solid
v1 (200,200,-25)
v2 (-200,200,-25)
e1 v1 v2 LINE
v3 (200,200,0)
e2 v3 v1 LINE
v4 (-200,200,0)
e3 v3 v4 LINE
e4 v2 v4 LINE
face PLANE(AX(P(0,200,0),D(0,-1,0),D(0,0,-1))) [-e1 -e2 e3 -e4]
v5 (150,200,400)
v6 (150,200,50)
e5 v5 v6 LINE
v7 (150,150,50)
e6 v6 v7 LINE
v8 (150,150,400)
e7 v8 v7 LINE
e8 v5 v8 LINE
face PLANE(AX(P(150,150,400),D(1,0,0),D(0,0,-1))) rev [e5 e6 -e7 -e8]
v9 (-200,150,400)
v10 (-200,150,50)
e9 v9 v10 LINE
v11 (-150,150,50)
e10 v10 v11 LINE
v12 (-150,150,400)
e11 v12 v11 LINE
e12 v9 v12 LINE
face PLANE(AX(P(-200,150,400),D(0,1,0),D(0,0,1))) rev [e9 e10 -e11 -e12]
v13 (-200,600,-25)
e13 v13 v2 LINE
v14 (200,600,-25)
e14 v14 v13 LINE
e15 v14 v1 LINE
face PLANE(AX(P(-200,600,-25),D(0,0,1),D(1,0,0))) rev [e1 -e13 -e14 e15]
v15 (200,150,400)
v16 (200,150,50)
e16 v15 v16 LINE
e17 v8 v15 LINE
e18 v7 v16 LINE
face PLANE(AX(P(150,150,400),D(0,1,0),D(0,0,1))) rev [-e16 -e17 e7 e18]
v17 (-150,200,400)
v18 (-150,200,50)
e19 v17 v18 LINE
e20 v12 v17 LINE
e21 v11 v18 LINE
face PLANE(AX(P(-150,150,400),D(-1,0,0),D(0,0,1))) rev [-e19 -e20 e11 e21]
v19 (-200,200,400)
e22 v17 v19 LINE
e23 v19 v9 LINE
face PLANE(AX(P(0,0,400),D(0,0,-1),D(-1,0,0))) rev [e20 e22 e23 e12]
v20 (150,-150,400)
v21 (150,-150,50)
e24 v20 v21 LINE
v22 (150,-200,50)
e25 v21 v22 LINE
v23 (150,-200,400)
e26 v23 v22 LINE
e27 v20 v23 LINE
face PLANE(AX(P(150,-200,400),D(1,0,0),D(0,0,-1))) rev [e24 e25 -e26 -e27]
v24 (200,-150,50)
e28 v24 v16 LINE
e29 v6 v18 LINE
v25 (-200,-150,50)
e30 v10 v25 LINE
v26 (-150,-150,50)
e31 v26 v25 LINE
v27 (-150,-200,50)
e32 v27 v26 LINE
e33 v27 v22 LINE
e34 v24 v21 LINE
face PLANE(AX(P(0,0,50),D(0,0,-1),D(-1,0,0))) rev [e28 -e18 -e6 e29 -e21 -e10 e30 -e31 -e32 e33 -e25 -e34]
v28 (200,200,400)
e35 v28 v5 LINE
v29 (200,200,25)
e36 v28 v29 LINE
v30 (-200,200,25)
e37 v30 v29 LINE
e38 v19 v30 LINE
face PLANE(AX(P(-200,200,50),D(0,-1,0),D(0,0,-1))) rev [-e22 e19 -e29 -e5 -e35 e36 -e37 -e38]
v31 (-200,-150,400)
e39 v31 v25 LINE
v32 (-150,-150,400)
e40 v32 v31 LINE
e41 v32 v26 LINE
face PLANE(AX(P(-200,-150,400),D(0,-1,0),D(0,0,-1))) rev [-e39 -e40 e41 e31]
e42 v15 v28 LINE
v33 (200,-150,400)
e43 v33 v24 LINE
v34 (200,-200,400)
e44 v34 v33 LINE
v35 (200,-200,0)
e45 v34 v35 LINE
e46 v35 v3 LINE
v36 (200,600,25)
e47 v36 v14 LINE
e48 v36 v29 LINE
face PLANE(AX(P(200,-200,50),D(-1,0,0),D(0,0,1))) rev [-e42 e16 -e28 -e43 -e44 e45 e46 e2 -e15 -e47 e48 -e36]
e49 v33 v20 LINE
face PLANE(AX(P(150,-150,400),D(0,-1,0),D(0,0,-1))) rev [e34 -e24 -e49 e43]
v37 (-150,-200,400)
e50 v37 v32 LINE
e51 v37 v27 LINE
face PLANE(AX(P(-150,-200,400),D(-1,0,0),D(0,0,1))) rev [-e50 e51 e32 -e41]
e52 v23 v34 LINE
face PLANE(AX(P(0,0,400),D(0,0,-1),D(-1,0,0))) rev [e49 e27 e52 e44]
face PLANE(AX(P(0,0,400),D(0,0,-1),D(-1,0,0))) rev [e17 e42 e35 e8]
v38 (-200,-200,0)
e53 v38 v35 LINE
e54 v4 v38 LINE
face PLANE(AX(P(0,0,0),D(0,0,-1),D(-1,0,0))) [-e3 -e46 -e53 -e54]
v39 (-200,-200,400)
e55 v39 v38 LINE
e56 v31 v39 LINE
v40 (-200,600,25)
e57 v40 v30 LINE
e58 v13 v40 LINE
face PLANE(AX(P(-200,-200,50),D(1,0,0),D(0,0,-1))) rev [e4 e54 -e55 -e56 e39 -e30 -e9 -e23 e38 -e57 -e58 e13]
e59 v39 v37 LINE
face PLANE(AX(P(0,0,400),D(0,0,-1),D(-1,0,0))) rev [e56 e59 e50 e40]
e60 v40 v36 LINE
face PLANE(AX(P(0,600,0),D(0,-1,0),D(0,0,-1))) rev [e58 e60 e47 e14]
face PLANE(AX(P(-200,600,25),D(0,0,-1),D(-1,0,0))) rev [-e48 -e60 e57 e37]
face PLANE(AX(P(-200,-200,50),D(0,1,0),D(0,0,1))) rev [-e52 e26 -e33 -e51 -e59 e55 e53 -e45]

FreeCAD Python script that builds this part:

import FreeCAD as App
import Part
import Sketcher

V = App.Vector
Q = App.Units.Quantity


def add_polygon(sketch, points):
    """Adds a closed chain of lines whose ends are joined by coincident constraints."""
    first, n = sketch.GeometryCount, len(points)
    for a, b in zip(points, points[1:] + points[:1]):
        sketch.addGeometry(Part.LineSegment(App.Vector(*a, 0), App.Vector(*b, 0)), False)
    for i in range(n):
        sketch.addConstraint(Sketcher.Constraint("Coincident", first + i, 2, first + (i + 1) % n, 1))

doc = App.newDocument("Part")
params = doc.addObject("Spreadsheet::Sheet", "Params")
for row, (alias, value) in enumerate([
    ("sketch1_width", "400 mm"),
    ("pad1_length", "50 mm"),
    ("sketch2_width", "50 mm"),
    ("pad2_length", "400 mm"),
    ("sketch3_width", "50 mm"),
    ("pad3_length", "400 mm"),
    ("sketch4_width", "50 mm"),
    ("pad4_length", "400 mm"),
    ("sketch5_width", "50 mm"),
    ("pad5_length", "400 mm"),
    ("sketch6_width", "400 mm"),
    ("pad6_length", "50 mm"),
    ("sketch7_width", "400 mm"),
    ("sketch7_height", "50 mm"),
    ("pad7_length", "400 mm"),
], start=1):
    params.set(f"A{row}", alias)
    params.set(f"B{row}", "=" + value)
    params.setAlias(f"B{row}", alias)

body = doc.addObject("PartDesign::Body", "Body")

sketch1 = doc.addObject("Sketcher::SketchObject", "Sketch")
body.addObject(sketch1)
sketch1.AttachmentSupport = (doc.XY_Plane, [""])
sketch1.MapMode = "FlatFace"
add_polygon(sketch1, [(-200, 200), (-200, -200), (200, -200), (200, 200)])
sketch1.addConstraint([
    Sketcher.Constraint("Vertical", 0),
    Sketcher.Constraint("Horizontal", 1),
    Sketcher.Constraint("Vertical", 2),
    Sketcher.Constraint("Horizontal", 3),
    Sketcher.Constraint("Symmetric", 0, 2, 2, 2, -1, 1),
    Sketcher.Constraint("Equal", 3, 0),
    Sketcher.Constraint("DistanceX", 1, 1, 1, 2, Q("400 mm")),
])
sketch1.setExpression("Constraints[10]", "Params.sketch1_width")
pad1 = doc.addObject("PartDesign::Pad", "Pad")
body.addObject(pad1)
pad1.Profile = sketch1
pad1.setExpression("Length", "Params.pad1_length")

sketch2 = doc.addObject("Sketcher::SketchObject", "Sketch001")
body.addObject(sketch2)
sketch2.AttachmentSupport = (doc.XY_Plane, [""])
sketch2.MapMode = "FlatFace"
add_polygon(sketch2, [(150, 200), (150, 150), (200, 150), (200, 200)])
sketch2.addConstraint([
    Sketcher.Constraint("Vertical", 0),
    Sketcher.Constraint("Horizontal", 1),
    Sketcher.Constraint("Vertical", 2),
    Sketcher.Constraint("Horizontal", 3),
    Sketcher.Constraint("Equal", 3, 0),
    Sketcher.Constraint("DistanceX", 1, 1, 1, 2, Q("50 mm")),
    Sketcher.Constraint("DistanceX", -1, 1, 0, 2, Q("150 mm")),
    Sketcher.Constraint("DistanceY", -1, 1, 0, 2, Q("150 mm")),
])
sketch2.setExpression("Constraints[9]", "Params.sketch2_width")
pad2 = doc.addObject("PartDesign::Pad", "Pad001")
body.addObject(pad2)
pad2.Profile = sketch2
pad2.setExpression("Length", "Params.pad2_length")

sketch3 = doc.addObject("Sketcher::SketchObject", "Sketch002")
body.addObject(sketch3)
sketch3.AttachmentSupport = (doc.XY_Plane, [""])
sketch3.MapMode = "FlatFace"
add_polygon(sketch3, [(-200, 200), (-200, 150), (-150, 150), (-150, 200)])
sketch3.addConstraint([
    Sketcher.Constraint("Vertical", 0),
    Sketcher.Constraint("Horizontal", 1),
    Sketcher.Constraint("Vertical", 2),
    Sketcher.Constraint("Horizontal", 3),
    Sketcher.Constraint("Equal", 3, 0),
    Sketcher.Constraint("DistanceX", 1, 1, 1, 2, Q("50 mm")),
    Sketcher.Constraint("DistanceX", 0, 2, -1, 1, Q("200 mm")),
    Sketcher.Constraint("DistanceY", -1, 1, 0, 2, Q("150 mm")),
])
sketch3.setExpression("Constraints[9]", "Params.sketch3_width")
pad3 = doc.addObject("PartDesign::Pad", "Pad002")
body.addObject(pad3)
pad3.Profile = sketch3
pad3.setExpression("Length", "Params.pad3_length")

sketch4 = doc.addObject("Sketcher::SketchObject", "Sketch003")
body.addObject(sketch4)
sketch4.AttachmentSupport = (doc.XY_Plane, [""])
sketch4.MapMode = "FlatFace"
add_polygon(sketch4, [(150, -150), (150, -200), (200, -200), (200, -150)])
sketch4.addConstraint([
    Sketcher.Constraint("Vertical", 0),
    Sketcher.Constraint("Horizontal", 1),
    Sketcher.Constraint("Vertical", 2),
    Sketcher.Constraint("Horizontal", 3),
    Sketcher.Constraint("Equal", 3, 0),
    Sketcher.Constraint("DistanceX", 1, 1, 1, 2, Q("50 mm")),
    Sketcher.Constraint("DistanceX", -1, 1, 0, 2, Q("150 mm")),
    Sketcher.Constraint("DistanceY", 0, 2, -1, 1, Q("200 mm")),
])
sketch4.setExpression("Constraints[9]", "Params.sketch4_width")
pad4 = doc.addObject("PartDesign::Pad", "Pad003")
body.addObject(pad4)
pad4.Profile = sketch4
pad4.setExpression("Length", "Params.pad4_length")

sketch5 = doc.addObject("Sketcher::SketchObject", "Sketch004")
body.addObject(sketch5)
sketch5.AttachmentSupport = (doc.XY_Plane, [""])
sketch5.MapMode = "FlatFace"
add_polygon(sketch5, [(-200, -150), (-200, -200), (-150, -200), (-150, -150)])
sketch5.addConstraint([
    Sketcher.Constraint("Vertical", 0),
    Sketcher.Constraint("Horizontal", 1),
    Sketcher.Constraint("Vertical", 2),
    Sketcher.Constraint("Horizontal", 3),
    Sketcher.Constraint("Equal", 3, 0),
    Sketcher.Constraint("DistanceX", 1, 1, 1, 2, Q("50 mm")),
    Sketcher.Constraint("DistanceX", 0, 2, -1, 1, Q("200 mm")),
    Sketcher.Constraint("DistanceY", 0, 2, -1, 1, Q("200 mm")),
])
sketch5.setExpression("Constraints[9]", "Params.sketch5_width")
pad5 = doc.addObject("PartDesign::Pad", "Pad004")
body.addObject(pad5)
pad5.Profile = sketch5
pad5.setExpression("Length", "Params.pad5_length")

sketch6 = doc.addObject("Sketcher::SketchObject", "Sketch005")
body.addObject(sketch6)
sketch6.AttachmentSupport = (doc.XY_Plane, [""])
sketch6.MapMode = "FlatFace"
add_polygon(sketch6, [(-200, 200), (-200, -200), (200, -200), (200, 200)])
sketch6.addConstraint([
    Sketcher.Constraint("Vertical", 0),
    Sketcher.Constraint("Horizontal", 1),
    Sketcher.Constraint("Vertical", 2),
    Sketcher.Constraint("Horizontal", 3),
    Sketcher.Constraint("Symmetric", 0, 2, 2, 2, -1, 1),
    Sketcher.Constraint("Equal", 3, 0),
    Sketcher.Constraint("DistanceX", 1, 1, 1, 2, Q("400 mm")),
])
sketch6.setExpression("Constraints[10]", "Params.sketch6_width")
pad6 = doc.addObject("PartDesign::Pad", "Pad005")
body.addObject(pad6)
pad6.Profile = sketch6
pad6.setExpression("Length", "Params.pad6_length")

sketch7 = doc.addObject("Sketcher::SketchObject", "Sketch006")
body.addObject(sketch7)
sketch7.AttachmentSupport = (doc.XZ_Plane, [""])
sketch7.MapMode = "FlatFace"
sketch7.AttachmentOffset = App.Placement(V(0, 0, -200), App.Rotation())
add_polygon(sketch7, [(-200, -25), (-200, 25), (200, 25), (200, -25)])
sketch7.addConstraint([
    Sketcher.Constraint("Vertical", 0),
    Sketcher.Constraint("Horizontal", 1),
    Sketcher.Constraint("Vertical", 2),
    Sketcher.Constraint("Horizontal", 3),
    Sketcher.Constraint("Symmetric", 0, 2, 2, 2, -1, 1),
    Sketcher.Constraint("DistanceX", 1, 1, 1, 2, Q("400 mm")),
    Sketcher.Constraint("DistanceY", 0, 1, 0, 2, Q("50 mm")),
])
sketch7.setExpression("Constraints[9]", "Params.sketch7_width")
sketch7.setExpression("Constraints[10]", "Params.sketch7_height")
pad7 = doc.addObject("PartDesign::Pad", "Pad006")
body.addObject(pad7)
pad7.Profile = sketch7
pad7.setExpression("Length", "Params.pad7_length")
pad7.Reversed = True

doc.recompute()
